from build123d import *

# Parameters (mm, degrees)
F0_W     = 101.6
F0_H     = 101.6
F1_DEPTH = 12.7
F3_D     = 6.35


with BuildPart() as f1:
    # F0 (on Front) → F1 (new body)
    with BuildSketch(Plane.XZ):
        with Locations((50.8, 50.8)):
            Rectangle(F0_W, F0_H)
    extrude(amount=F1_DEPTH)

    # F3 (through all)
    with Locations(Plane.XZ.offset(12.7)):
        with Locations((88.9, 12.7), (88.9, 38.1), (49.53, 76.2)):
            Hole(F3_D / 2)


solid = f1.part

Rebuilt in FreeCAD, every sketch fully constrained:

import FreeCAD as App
import Part
import Sketcher

V = App.Vector
Q = App.Units.Quantity

doc = App.newDocument("Part")
body = doc.addObject("PartDesign::Body", "Body")

sketch1 = doc.addObject("Sketcher::SketchObject", "Sketch")
body.addObject(sketch1)
sketch1.AttachmentSupport = (doc.XZ_Plane, [""])
sketch1.MapMode = "FlatFace"
sketch1.addGeometry(Part.LineSegment(V(0, 101.6, 0), V(0, 0, 0)), False)
sketch1.addGeometry(Part.LineSegment(V(0, 0, 0), V(101.6, 0, 0)), False)
sketch1.addGeometry(Part.LineSegment(V(101.6, 0, 0), V(101.6, 101.6, 0)), False)
sketch1.addGeometry(Part.LineSegment(V(101.6, 101.6, 0), V(0, 101.6, 0)), False)
sketch1.addConstraint(Sketcher.Constraint("Coincident", 0, 2, 1, 1))
sketch1.addConstraint(Sketcher.Constraint("Coincident", 1, 2, 2, 1))
sketch1.addConstraint(Sketcher.Constraint("Coincident", 2, 2, 3, 1))
sketch1.addConstraint(Sketcher.Constraint("Coincident", 3, 2, 0, 1))
sketch1.addConstraint(Sketcher.Constraint("Vertical", 0))
sketch1.addConstraint(Sketcher.Constraint("Horizontal", 1))
sketch1.addConstraint(Sketcher.Constraint("Vertical", 2))
sketch1.addConstraint(Sketcher.Constraint("Horizontal", 3))
sketch1.addConstraint(Sketcher.Constraint("Coincident", 0, 2, -1, 1))
sketch1.addConstraint(Sketcher.Constraint("Equal", 3, 0))
sketch1.addConstraint(Sketcher.Constraint("DistanceX", 1, 1, 1, 2, Q("4 in")))
pad1 = doc.addObject("PartDesign::Pad", "Pad")
body.addObject(pad1)
pad1.Profile = sketch1
pad1.Length = Q("0.5 in")

sketch2 = doc.addObject("Sketcher::SketchObject", "Sketch001")
body.addObject(sketch2)
sketch2.AttachmentSupport = (doc.XZ_Plane, [""])
sketch2.MapMode = "FlatFace"
sketch2.AttachmentOffset = App.Placement(V(0, 0, 0.5 * 25.4), App.Rotation())
sketch2.addGeometry(Part.Circle(V(88.9, 12.7, 0), V(0, 0, 1), 3.175), False)
sketch2.addGeometry(Part.Circle(V(88.9, 38.1, 0), V(0, 0, 1), 3.175), False)
sketch2.addGeometry(Part.Circle(V(49.53, 76.2, 0), V(0, 0, 1), 3.175), False)
sketch2.addConstraint(Sketcher.Constraint("Equal", 0, 1))
sketch2.addConstraint(Sketcher.Constraint("Equal", 1, 2))
sketch2.addConstraint(Sketcher.Constraint("Vertical", 0, 3, 1, 3))
sketch2.addConstraint(Sketcher.Constraint("Diameter", 0, Q("0.25 in")))
sketch2.addConstraint(Sketcher.Constraint("DistanceY", -1, 1, 2, 3, Q("3 in")))
sketch2.addConstraint(Sketcher.Constraint("DistanceY", 0, 3, 1, 3, Q("1 in")))
sketch2.addConstraint(Sketcher.Constraint("DistanceX", -1, 1, 0, 3, Q("3.5 in")))
sketch2.addConstraint(Sketcher.Constraint("DistanceY", -1, 1, 0, 3, Q("0.5 in")))
sketch2.addConstraint(Sketcher.Constraint("DistanceX", -1, 1, 2, 3, Q("1.95 in")))
doc.recompute()
hole = doc.addObject("PartDesign::Hole", "Hole")
body.addObject(hole)
hole.Profile = sketch2
hole.ThreadType = "None"
hole.Diameter = Q("0.25 in")
hole.DepthType = "ThroughAll"

doc.recompute()
